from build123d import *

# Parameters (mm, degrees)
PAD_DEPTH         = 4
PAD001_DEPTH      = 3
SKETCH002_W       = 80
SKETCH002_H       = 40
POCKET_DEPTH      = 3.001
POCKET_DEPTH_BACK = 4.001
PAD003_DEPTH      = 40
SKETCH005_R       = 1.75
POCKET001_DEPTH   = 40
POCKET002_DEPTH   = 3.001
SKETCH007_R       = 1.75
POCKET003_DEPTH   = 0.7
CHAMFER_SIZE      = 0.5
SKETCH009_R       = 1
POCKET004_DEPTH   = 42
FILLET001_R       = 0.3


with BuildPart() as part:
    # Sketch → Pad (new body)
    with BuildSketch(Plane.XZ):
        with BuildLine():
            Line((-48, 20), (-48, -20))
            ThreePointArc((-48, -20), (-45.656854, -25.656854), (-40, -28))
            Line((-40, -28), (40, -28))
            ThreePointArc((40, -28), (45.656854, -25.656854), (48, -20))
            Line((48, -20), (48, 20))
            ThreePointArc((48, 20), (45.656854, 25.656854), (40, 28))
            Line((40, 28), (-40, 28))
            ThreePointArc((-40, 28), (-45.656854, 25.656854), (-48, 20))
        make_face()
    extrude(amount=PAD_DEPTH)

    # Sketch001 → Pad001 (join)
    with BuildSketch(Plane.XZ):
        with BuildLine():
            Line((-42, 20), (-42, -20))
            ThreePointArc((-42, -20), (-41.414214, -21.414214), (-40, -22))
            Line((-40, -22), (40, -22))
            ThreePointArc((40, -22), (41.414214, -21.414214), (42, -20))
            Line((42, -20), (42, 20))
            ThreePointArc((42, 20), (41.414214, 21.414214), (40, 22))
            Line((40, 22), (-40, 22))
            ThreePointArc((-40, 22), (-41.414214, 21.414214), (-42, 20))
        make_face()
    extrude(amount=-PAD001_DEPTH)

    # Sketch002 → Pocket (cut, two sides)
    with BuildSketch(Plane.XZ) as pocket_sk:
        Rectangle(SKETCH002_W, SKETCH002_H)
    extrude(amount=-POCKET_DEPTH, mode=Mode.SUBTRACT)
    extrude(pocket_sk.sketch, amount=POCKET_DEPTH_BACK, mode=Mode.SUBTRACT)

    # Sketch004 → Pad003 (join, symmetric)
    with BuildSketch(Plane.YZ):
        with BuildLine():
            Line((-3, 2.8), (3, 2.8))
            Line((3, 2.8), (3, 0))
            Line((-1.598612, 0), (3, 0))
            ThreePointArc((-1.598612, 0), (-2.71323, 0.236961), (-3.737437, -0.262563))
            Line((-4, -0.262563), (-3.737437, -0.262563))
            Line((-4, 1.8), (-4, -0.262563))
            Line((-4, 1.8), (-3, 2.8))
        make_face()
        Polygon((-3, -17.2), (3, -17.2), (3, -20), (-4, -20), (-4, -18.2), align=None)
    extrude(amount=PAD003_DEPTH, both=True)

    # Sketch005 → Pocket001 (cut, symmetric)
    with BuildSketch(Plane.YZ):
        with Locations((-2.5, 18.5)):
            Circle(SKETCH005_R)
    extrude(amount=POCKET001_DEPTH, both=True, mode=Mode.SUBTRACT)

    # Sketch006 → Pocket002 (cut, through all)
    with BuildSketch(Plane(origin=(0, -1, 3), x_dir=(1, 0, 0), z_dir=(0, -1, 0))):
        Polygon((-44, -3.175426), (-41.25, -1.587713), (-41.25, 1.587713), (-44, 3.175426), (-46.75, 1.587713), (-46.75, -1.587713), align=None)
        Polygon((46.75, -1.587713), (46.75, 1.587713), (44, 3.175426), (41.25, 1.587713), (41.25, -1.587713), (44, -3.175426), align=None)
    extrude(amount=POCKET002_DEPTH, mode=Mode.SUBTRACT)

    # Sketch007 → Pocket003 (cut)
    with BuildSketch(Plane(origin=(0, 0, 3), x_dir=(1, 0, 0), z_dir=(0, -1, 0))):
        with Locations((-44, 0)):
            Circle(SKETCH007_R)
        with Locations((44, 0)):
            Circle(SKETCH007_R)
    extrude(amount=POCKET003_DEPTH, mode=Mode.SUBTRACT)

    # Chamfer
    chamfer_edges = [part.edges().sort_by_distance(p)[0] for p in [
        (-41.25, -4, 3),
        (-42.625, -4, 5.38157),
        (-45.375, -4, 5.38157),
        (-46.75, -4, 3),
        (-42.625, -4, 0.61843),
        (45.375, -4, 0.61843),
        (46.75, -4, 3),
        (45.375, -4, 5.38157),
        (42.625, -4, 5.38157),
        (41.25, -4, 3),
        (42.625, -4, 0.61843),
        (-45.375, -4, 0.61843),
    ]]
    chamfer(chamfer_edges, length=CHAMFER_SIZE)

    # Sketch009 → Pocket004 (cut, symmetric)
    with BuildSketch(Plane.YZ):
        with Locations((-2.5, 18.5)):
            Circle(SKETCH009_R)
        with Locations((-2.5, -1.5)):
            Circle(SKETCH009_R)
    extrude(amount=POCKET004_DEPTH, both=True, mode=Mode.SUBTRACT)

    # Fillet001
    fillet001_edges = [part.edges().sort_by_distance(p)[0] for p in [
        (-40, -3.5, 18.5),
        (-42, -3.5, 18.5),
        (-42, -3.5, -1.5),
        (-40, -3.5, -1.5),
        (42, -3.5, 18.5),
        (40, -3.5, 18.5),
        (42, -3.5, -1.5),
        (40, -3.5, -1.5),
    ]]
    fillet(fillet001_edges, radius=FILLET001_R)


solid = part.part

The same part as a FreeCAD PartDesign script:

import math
import FreeCAD as App
import Part
import Sketcher

V = App.Vector
Q = App.Units.Quantity


def edges_at(feature, points):
    """Names of the edges that pass closest to the given points."""
    edges = feature.Shape.Edges
    near = lambda p: min(range(len(edges)), key=lambda i: edges[i].distToShape(Part.Vertex(*p))[0])
    return sorted({f"Edge{near(p) + 1}" for p in points})


def add_polygon(sketch, points):
    """Adds a closed chain of lines whose ends are joined by coincident constraints."""
    first, n = sketch.GeometryCount, len(points)
    for a, b in zip(points, points[1:] + points[:1]):
        sketch.addGeometry(Part.LineSegment(App.Vector(*a, 0), App.Vector(*b, 0)), False)
    for i in range(n):
        sketch.addConstraint(Sketcher.Constraint("Coincident", first + i, 2, first + (i + 1) % n, 1))

doc = App.newDocument("Part")
body = doc.addObject("PartDesign::Body", "Body")

sketch1 = doc.addObject("Sketcher::SketchObject", "Sketch")
body.addObject(sketch1)
sketch1.AttachmentSupport = (doc.XZ_Plane, [""])
sketch1.MapMode = "FlatFace"
sketch1.addGeometry([
    Part.LineSegment(V(-48, 20, 0), V(-48, -20, 0)),
    Part.ArcOfCircle(Part.Circle(V(-40, -20, 0), V(0, 0, 1), 8), math.radians(-180), math.radians(-90)),
    Part.LineSegment(V(-40, -28, 0), V(40, -28, 0)),
    Part.ArcOfCircle(Part.Circle(V(40, -20, 0), V(0, 0, 1), 8), math.radians(-90), math.radians(0)),
    Part.LineSegment(V(48, -20, 0), V(48, 20, 0)),
    Part.ArcOfCircle(Part.Circle(V(40, 20, 0), V(0, 0, 1), 8), math.radians(0), math.radians(90)),
    Part.LineSegment(V(40, 28, 0), V(-40, 28, 0)),
    Part.ArcOfCircle(Part.Circle(V(-40, 20, 0), V(0, 0, 1), 8), math.radians(90), math.radians(180)),
], False)
sketch1.addConstraint([
    Sketcher.Constraint("Tangent", 0, 2, 1, 1),
    Sketcher.Constraint("Tangent", 1, 2, 2, 1),
    Sketcher.Constraint("Tangent", 2, 2, 3, 1),
    Sketcher.Constraint("Tangent", 3, 2, 4, 1),
    Sketcher.Constraint("Tangent", 4, 2, 5, 1),
    Sketcher.Constraint("Tangent", 5, 2, 6, 1),
    Sketcher.Constraint("Tangent", 6, 2, 7, 1),
    Sketcher.Constraint("Tangent", 7, 2, 0, 1),
    Sketcher.Constraint("Vertical", 0),
    Sketcher.Constraint("Horizontal", 2),
    Sketcher.Constraint("Vertical", 4),
    Sketcher.Constraint("Horizontal", 6),
    Sketcher.Constraint("Equal", 1, 3),
    Sketcher.Constraint("Equal", 3, 5),
    Sketcher.Constraint("Equal", 5, 7),
    Sketcher.Constraint("Symmetric", 1, 3, 5, 3, -1, 1),
    Sketcher.Constraint("Radius", 1, 8.000001),
    Sketcher.Constraint("DistanceX", 2, 1, 2, 2, 80.0),
    Sketcher.Constraint("DistanceY", 0, 2, 0, 1, 40.0),
])
pad1 = doc.addObject("PartDesign::Pad", "Pad")
body.addObject(pad1)
pad1.Profile = sketch1
pad1.Length = 4

sketch2 = doc.addObject("Sketcher::SketchObject", "Sketch001")
body.addObject(sketch2)
sketch2.AttachmentSupport = (doc.XZ_Plane, [""])
sketch2.MapMode = "FlatFace"
sketch2.addGeometry([
    Part.LineSegment(V(-42, 20, 0), V(-42, -20, 0)),
    Part.ArcOfCircle(Part.Circle(V(-40, -20, 0), V(0, 0, 1), 2), math.radians(180), math.radians(270)),
    Part.LineSegment(V(-40, -22, 0), V(40, -22, 0)),
    Part.ArcOfCircle(Part.Circle(V(40, -20, 0), V(0, 0, 1), 2), math.radians(-90), math.radians(0)),
    Part.LineSegment(V(42, -20, 0), V(42, 20, 0)),
    Part.ArcOfCircle(Part.Circle(V(40, 20, 0), V(0, 0, 1), 2), math.radians(0), math.radians(90)),
    Part.LineSegment(V(40, 22, 0), V(-40, 22, 0)),
    Part.ArcOfCircle(Part.Circle(V(-40, 20, 0), V(0, 0, 1), 2), math.radians(90), math.radians(180)),
], False)
sketch2.addConstraint([
    Sketcher.Constraint("Tangent", 0, 2, 1, 1),
    Sketcher.Constraint("Tangent", 1, 2, 2, 1),
    Sketcher.Constraint("Tangent", 2, 2, 3, 1),
    Sketcher.Constraint("Tangent", 3, 2, 4, 1),
    Sketcher.Constraint("Tangent", 4, 2, 5, 1),
    Sketcher.Constraint("Tangent", 5, 2, 6, 1),
    Sketcher.Constraint("Tangent", 6, 2, 7, 1),
    Sketcher.Constraint("Tangent", 7, 2, 0, 1),
    Sketcher.Constraint("Vertical", 0),
    Sketcher.Constraint("Horizontal", 2),
    Sketcher.Constraint("Vertical", 4),
    Sketcher.Constraint("Horizontal", 6),
    Sketcher.Constraint("Equal", 1, 3),
    Sketcher.Constraint("Equal", 3, 5),
    Sketcher.Constraint("Equal", 5, 7),
    Sketcher.Constraint("Symmetric", 1, 3, 5, 3, -1, 1),
    Sketcher.Constraint("Radius", 1, 1.999999),
    Sketcher.Constraint("DistanceX", 2, 1, 2, 2, 80.0),
    Sketcher.Constraint("DistanceY", 0, 2, 0, 1, 40.0),
])
pad2 = doc.addObject("PartDesign::Pad", "Pad001")
body.addObject(pad2)
pad2.Profile = sketch2
pad2.Length = 3
pad2.Reversed = True

sketch3 = doc.addObject("Sketcher::SketchObject", "Sketch002")
body.addObject(sketch3)
sketch3.AttachmentSupport = (doc.XZ_Plane, [""])
sketch3.MapMode = "FlatFace"
add_polygon(sketch3, [(-40, 20), (-40, -20), (40, -20), (40, 20)])
sketch3.addConstraint([
    Sketcher.Constraint("Vertical", 0),
    Sketcher.Constraint("Horizontal", 1),
    Sketcher.Constraint("Vertical", 2),
    Sketcher.Constraint("Horizontal", 3),
    Sketcher.Constraint("Symmetric", 0, 2, 2, 2, -1, 1),
    Sketcher.Constraint("DistanceX", 1, 1, 1, 2, 80.0),
    Sketcher.Constraint("DistanceY", 0, 2, 0, 1, 40.0),
])
pocket1 = doc.addObject("PartDesign::Pocket", "Pocket")
body.addObject(pocket1)
pocket1.Profile = sketch3
pocket1.Type = "ThroughAll"
pocket1.Midplane = True

sketch4 = doc.addObject("Sketcher::SketchObject", "Sketch003")
body.addObject(sketch4)
sketch4.AttachmentSupport = (doc.YZ_Plane, [""])
sketch4.MapMode = "FlatFace"
sketch4.addGeometry(Part.LineSegment(V(3, 2.8, 0), V(-3, 2.8, 0)), False)
sketch4.addGeometry(Part.LineSegment(V(-3, 2.8, 0), V(-4, 1.8, 0)), False)
sketch4.addGeometry(Part.LineSegment(V(-4, 1.8, 0), V(-4, -0.26, 0)), False)
sketch4.addGeometry(Part.LineSegment(V(-4, -0.26, 0), V(-3.74, -0.26, 0)), False)
sketch4.addGeometry(Part.ArcOfCircle(Part.Circle(V(-2.5, -1.5, 0), V(0, 0, 1), 1.75), math.radians(59), math.radians(135)), False)
sketch4.addGeometry(Part.LineSegment(V(-1.6, 0, 0), V(3, 0, 0)), False)
sketch4.addGeometry(Part.LineSegment(V(3, 0, 0), V(3, 2.8, 0)), False)
add_polygon(sketch4, [(3, -17.2), (-3, -17.2), (-4, -18.2), (-4, -20), (3, -20)])
sketch4.addConstraint([
    Sketcher.Constraint("Coincident", 0, 2, 1, 1),
    Sketcher.Constraint("Coincident", 1, 2, 2, 1),
    Sketcher.Constraint("Coincident", 2, 2, 3, 1),
    Sketcher.Constraint("Coincident", 3, 2, 4, 2),
    Sketcher.Constraint("Coincident", 4, 1, 5, 1),
    Sketcher.Constraint("Coincident", 5, 2, 6, 1),
    Sketcher.Constraint("Coincident", 6, 2, 0, 1),
    Sketcher.Constraint("Horizontal", 0),
    Sketcher.Constraint("Vertical", 2),
    Sketcher.Constraint("Horizontal", 3),
    Sketcher.Constraint("Horizontal", 5),
    Sketcher.Constraint("Vertical", 6),
    Sketcher.Constraint("Horizontal", 7),
    Sketcher.Constraint("Vertical", 9),
    Sketcher.Constraint("Horizontal", 10),
    Sketcher.Constraint("Vertical", 11),
    Sketcher.Constraint("PointOnObject", 4, 1, -1),
    Sketcher.Constraint("Parallel", 1, 8),
    Sketcher.Constraint("Vertical", 0, 2, 7, 2),
    Sketcher.Constraint("Vertical", 2, 2, 8, 2),
    Sketcher.Constraint("Vertical", 6, 2, 10, 2),
    Sketcher.Constraint("Equal", 6, 11),
    Sketcher.Constraint("DistanceX", 0, 2, 0, 1, 6.0),
    Sketcher.Constraint("DistanceX", 10, 1, 10, 2, 7.0),
    Sketcher.Constraint("Angle", 1, Q("-135 deg")),
    Sketcher.Constraint("Radius", 4, 1.75),
    Sketcher.Constraint("DistanceY", 6, 1, 6, 2, 2.8),
    Sketcher.Constraint("DistanceX", 0, 2, -1, 1, 3.0),
    Sketcher.Constraint("DistanceY", 9, 2, -1, 1, 20.0),
    Sketcher.Constraint("DistanceX", 4, 3, -1, 1, 2.5),
    Sketcher.Constraint("DistanceY", 4, 3, -1, 1, 1.5),
    Sketcher.Constraint("DistanceX", 3, 1, 3, 2, 0.262563),
])
pad3 = doc.addObject("PartDesign::Pad", "Pad002")
body.addObject(pad3)
pad3.Profile = sketch4
pad3.Length = 80
pad3.Midplane = True

sketch5 = doc.addObject("Sketcher::SketchObject", "Sketch004")
body.addObject(sketch5)
sketch5.AttachmentSupport = (doc.YZ_Plane, [""])
sketch5.MapMode = "FlatFace"
sketch5.addGeometry(Part.Circle(V(-2.5, 18.5, 0), V(0, 0, 1), 1.8), False)
sketch5.addConstraint([
    Sketcher.Constraint("Diameter", 0, 3.5),
    Sketcher.Constraint("DistanceX", 0, 3, -1, 1, 2.5),
    Sketcher.Constraint("DistanceY", -1, 1, 0, 3, 18.5),
])
pocket2 = doc.addObject("PartDesign::Pocket", "Pocket001")
body.addObject(pocket2)
pocket2.Profile = sketch5
pocket2.Length = 80
pocket2.Midplane = True

sketch6 = doc.addObject("Sketcher::SketchObject", "Sketch005")
body.addObject(sketch6)
sketch6.AttachmentSupport = (doc.XZ_Plane, [""])
sketch6.MapMode = "FlatFace"
sketch6.AttachmentOffset = App.Placement(V(0, 0, 1), App.Rotation())
add_polygon(sketch6, [(-44, -0.2), (-41.2, 1.4), (-41.2, 4.6), (-44, 6.2), (-46.8, 4.6), (-46.8, 1.4)])
add_polygon(sketch6, [(46.8, 1.4), (46.8, 4.6), (44, 6.2), (41.2, 4.6), (41.2, 1.4), (44, -0.2)])
sketch6.addConstraint([
    Sketcher.Constraint("Vertical", 1),
    Sketcher.Constraint("Vertical", 4),
    Sketcher.Constraint("Vertical", 6),
    Sketcher.Constraint("Vertical", 9),
    Sketcher.Constraint("Symmetric", 3, 2, 6, 2, -2),
    Sketcher.Constraint("Symmetric", 2, 2, 7, 2, -2),
    Sketcher.Constraint("Symmetric", 1, 2, 8, 2, -2),
    Sketcher.Constraint("Symmetric", 5, 2, 10, 2, -2),
    Sketcher.Constraint("Parallel", 0, 3),
    Sketcher.Constraint("Parallel", 2, 5),
    Sketcher.Constraint("Parallel", 5, 7),
    Sketcher.Constraint("Parallel", 7, 10),
    Sketcher.Constraint("Parallel", 8, 11),
    Sketcher.Constraint("Horizontal", 1, 2, 3, 2),
    Sketcher.Constraint("Horizontal", 0, 2, 4, 2),
    Sketcher.Constraint("Angle", 0, Q("29.999996 deg")),
    Sketcher.Constraint("DistanceX", 2, 2, -1, 1, 44.0),
    Sketcher.Constraint("DistanceX", 3, 2, 1, 2, 5.5),
    Sketcher.Constraint("DistanceY", 1, 1, 1, 2, 3.175426),
    Sketcher.Constraint("DistanceY", -1, 1, 0, 2, 1.412287),
])
pocket3 = doc.addObject("PartDesign::Pocket", "Pocket002")
body.addObject(pocket3)
pocket3.Profile = sketch6
pocket3.Type = "ThroughAll"
pocket3.Reversed = True

sketch7 = doc.addObject("Sketcher::SketchObject", "Sketch006")
body.addObject(sketch7)
sketch7.AttachmentSupport = (doc.XZ_Plane, [""])
sketch7.MapMode = "FlatFace"
sketch7.addGeometry([
    Part.Circle(V(-44, 3, 0), V(0, 0, 1), 1.8),
    Part.Circle(V(44, 3, 0), V(0, 0, 1), 1.8),
], False)
sketch7.addConstraint([
    Sketcher.Constraint("Equal", 0, 1),
    Sketcher.Constraint("Symmetric", 0, 3, 1, 3, -2),
    Sketcher.Constraint("Diameter", 0, 3.5),
    Sketcher.Constraint("DistanceX", 0, 3, -1, 1, 44.0),
    Sketcher.Constraint("DistanceY", -1, 1, 0, 3, 3.0),
])
pocket4 = doc.addObject("PartDesign::Pocket", "Pocket003")
body.addObject(pocket4)
pocket4.Profile = sketch7
pocket4.Length = 0.7
pocket4.Reversed = True
doc.recompute()

chamfer = doc.addObject("PartDesign::Chamfer", "Chamfer")
body.addObject(chamfer)
chamfer.Base = (pocket4, edges_at(pocket4, [
    (-41.25, -4, 3),
    (-42.625, -4, 5.382),
    (-45.375, -4, 5.382),
    (-46.75, -4, 3),
    (-42.625, -4, 0.618),
    (45.375, -4, 0.618),
    (46.75, -4, 3),
    (45.375, -4, 5.382),
    (42.625, -4, 5.382),
    (41.25, -4, 3),
    (42.625, -4, 0.618),
    (-45.375, -4, 0.618),
]))
chamfer.Size = 0.5

sketch8 = doc.addObject("Sketcher::SketchObject", "Sketch007")
body.addObject(sketch8)
sketch8.AttachmentSupport = (doc.YZ_Plane, [""])
sketch8.MapMode = "FlatFace"
sketch8.addGeometry([
    Part.Circle(V(-2.5, 18.5, 0), V(0, 0, 1), 1),
    Part.Circle(V(-2.5, -1.5, 0), V(0, 0, 1), 1),
], False)
sketch8.addConstraint([
    Sketcher.Constraint("Equal", 0, 1),
    Sketcher.Constraint("Vertical", 0, 3, 1, 3),
    Sketcher.Constraint("Diameter", 0, 2.0),
    Sketcher.Constraint("DistanceY", 1, 3, 0, 3, 20.0),
    Sketcher.Constraint("DistanceX", 0, 3, -1, 1, 2.5),
    Sketcher.Constraint("DistanceY", -1, 1, 0, 3, 18.5),
])
pocket5 = doc.addObject("PartDesign::Pocket", "Pocket004")
body.addObject(pocket5)
pocket5.Profile = sketch8
pocket5.Length = 84
pocket5.Midplane = True
doc.recompute()

fillet = doc.addObject("PartDesign::Fillet", "Fillet")
body.addObject(fillet)
fillet.Base = (pocket5, edges_at(pocket5, [
    (-40, -3.5, 18.5),
    (-42, -3.5, 18.5),
    (-42, -3.5, -1.5),
    (-40, -3.5, -1.5),
    (42, -3.5, 18.5),
    (40, -3.5, 18.5),
    (42, -3.5, -1.5),
    (40, -3.5, -1.5),
]))
fillet.Radius = 0.3

doc.recompute()
